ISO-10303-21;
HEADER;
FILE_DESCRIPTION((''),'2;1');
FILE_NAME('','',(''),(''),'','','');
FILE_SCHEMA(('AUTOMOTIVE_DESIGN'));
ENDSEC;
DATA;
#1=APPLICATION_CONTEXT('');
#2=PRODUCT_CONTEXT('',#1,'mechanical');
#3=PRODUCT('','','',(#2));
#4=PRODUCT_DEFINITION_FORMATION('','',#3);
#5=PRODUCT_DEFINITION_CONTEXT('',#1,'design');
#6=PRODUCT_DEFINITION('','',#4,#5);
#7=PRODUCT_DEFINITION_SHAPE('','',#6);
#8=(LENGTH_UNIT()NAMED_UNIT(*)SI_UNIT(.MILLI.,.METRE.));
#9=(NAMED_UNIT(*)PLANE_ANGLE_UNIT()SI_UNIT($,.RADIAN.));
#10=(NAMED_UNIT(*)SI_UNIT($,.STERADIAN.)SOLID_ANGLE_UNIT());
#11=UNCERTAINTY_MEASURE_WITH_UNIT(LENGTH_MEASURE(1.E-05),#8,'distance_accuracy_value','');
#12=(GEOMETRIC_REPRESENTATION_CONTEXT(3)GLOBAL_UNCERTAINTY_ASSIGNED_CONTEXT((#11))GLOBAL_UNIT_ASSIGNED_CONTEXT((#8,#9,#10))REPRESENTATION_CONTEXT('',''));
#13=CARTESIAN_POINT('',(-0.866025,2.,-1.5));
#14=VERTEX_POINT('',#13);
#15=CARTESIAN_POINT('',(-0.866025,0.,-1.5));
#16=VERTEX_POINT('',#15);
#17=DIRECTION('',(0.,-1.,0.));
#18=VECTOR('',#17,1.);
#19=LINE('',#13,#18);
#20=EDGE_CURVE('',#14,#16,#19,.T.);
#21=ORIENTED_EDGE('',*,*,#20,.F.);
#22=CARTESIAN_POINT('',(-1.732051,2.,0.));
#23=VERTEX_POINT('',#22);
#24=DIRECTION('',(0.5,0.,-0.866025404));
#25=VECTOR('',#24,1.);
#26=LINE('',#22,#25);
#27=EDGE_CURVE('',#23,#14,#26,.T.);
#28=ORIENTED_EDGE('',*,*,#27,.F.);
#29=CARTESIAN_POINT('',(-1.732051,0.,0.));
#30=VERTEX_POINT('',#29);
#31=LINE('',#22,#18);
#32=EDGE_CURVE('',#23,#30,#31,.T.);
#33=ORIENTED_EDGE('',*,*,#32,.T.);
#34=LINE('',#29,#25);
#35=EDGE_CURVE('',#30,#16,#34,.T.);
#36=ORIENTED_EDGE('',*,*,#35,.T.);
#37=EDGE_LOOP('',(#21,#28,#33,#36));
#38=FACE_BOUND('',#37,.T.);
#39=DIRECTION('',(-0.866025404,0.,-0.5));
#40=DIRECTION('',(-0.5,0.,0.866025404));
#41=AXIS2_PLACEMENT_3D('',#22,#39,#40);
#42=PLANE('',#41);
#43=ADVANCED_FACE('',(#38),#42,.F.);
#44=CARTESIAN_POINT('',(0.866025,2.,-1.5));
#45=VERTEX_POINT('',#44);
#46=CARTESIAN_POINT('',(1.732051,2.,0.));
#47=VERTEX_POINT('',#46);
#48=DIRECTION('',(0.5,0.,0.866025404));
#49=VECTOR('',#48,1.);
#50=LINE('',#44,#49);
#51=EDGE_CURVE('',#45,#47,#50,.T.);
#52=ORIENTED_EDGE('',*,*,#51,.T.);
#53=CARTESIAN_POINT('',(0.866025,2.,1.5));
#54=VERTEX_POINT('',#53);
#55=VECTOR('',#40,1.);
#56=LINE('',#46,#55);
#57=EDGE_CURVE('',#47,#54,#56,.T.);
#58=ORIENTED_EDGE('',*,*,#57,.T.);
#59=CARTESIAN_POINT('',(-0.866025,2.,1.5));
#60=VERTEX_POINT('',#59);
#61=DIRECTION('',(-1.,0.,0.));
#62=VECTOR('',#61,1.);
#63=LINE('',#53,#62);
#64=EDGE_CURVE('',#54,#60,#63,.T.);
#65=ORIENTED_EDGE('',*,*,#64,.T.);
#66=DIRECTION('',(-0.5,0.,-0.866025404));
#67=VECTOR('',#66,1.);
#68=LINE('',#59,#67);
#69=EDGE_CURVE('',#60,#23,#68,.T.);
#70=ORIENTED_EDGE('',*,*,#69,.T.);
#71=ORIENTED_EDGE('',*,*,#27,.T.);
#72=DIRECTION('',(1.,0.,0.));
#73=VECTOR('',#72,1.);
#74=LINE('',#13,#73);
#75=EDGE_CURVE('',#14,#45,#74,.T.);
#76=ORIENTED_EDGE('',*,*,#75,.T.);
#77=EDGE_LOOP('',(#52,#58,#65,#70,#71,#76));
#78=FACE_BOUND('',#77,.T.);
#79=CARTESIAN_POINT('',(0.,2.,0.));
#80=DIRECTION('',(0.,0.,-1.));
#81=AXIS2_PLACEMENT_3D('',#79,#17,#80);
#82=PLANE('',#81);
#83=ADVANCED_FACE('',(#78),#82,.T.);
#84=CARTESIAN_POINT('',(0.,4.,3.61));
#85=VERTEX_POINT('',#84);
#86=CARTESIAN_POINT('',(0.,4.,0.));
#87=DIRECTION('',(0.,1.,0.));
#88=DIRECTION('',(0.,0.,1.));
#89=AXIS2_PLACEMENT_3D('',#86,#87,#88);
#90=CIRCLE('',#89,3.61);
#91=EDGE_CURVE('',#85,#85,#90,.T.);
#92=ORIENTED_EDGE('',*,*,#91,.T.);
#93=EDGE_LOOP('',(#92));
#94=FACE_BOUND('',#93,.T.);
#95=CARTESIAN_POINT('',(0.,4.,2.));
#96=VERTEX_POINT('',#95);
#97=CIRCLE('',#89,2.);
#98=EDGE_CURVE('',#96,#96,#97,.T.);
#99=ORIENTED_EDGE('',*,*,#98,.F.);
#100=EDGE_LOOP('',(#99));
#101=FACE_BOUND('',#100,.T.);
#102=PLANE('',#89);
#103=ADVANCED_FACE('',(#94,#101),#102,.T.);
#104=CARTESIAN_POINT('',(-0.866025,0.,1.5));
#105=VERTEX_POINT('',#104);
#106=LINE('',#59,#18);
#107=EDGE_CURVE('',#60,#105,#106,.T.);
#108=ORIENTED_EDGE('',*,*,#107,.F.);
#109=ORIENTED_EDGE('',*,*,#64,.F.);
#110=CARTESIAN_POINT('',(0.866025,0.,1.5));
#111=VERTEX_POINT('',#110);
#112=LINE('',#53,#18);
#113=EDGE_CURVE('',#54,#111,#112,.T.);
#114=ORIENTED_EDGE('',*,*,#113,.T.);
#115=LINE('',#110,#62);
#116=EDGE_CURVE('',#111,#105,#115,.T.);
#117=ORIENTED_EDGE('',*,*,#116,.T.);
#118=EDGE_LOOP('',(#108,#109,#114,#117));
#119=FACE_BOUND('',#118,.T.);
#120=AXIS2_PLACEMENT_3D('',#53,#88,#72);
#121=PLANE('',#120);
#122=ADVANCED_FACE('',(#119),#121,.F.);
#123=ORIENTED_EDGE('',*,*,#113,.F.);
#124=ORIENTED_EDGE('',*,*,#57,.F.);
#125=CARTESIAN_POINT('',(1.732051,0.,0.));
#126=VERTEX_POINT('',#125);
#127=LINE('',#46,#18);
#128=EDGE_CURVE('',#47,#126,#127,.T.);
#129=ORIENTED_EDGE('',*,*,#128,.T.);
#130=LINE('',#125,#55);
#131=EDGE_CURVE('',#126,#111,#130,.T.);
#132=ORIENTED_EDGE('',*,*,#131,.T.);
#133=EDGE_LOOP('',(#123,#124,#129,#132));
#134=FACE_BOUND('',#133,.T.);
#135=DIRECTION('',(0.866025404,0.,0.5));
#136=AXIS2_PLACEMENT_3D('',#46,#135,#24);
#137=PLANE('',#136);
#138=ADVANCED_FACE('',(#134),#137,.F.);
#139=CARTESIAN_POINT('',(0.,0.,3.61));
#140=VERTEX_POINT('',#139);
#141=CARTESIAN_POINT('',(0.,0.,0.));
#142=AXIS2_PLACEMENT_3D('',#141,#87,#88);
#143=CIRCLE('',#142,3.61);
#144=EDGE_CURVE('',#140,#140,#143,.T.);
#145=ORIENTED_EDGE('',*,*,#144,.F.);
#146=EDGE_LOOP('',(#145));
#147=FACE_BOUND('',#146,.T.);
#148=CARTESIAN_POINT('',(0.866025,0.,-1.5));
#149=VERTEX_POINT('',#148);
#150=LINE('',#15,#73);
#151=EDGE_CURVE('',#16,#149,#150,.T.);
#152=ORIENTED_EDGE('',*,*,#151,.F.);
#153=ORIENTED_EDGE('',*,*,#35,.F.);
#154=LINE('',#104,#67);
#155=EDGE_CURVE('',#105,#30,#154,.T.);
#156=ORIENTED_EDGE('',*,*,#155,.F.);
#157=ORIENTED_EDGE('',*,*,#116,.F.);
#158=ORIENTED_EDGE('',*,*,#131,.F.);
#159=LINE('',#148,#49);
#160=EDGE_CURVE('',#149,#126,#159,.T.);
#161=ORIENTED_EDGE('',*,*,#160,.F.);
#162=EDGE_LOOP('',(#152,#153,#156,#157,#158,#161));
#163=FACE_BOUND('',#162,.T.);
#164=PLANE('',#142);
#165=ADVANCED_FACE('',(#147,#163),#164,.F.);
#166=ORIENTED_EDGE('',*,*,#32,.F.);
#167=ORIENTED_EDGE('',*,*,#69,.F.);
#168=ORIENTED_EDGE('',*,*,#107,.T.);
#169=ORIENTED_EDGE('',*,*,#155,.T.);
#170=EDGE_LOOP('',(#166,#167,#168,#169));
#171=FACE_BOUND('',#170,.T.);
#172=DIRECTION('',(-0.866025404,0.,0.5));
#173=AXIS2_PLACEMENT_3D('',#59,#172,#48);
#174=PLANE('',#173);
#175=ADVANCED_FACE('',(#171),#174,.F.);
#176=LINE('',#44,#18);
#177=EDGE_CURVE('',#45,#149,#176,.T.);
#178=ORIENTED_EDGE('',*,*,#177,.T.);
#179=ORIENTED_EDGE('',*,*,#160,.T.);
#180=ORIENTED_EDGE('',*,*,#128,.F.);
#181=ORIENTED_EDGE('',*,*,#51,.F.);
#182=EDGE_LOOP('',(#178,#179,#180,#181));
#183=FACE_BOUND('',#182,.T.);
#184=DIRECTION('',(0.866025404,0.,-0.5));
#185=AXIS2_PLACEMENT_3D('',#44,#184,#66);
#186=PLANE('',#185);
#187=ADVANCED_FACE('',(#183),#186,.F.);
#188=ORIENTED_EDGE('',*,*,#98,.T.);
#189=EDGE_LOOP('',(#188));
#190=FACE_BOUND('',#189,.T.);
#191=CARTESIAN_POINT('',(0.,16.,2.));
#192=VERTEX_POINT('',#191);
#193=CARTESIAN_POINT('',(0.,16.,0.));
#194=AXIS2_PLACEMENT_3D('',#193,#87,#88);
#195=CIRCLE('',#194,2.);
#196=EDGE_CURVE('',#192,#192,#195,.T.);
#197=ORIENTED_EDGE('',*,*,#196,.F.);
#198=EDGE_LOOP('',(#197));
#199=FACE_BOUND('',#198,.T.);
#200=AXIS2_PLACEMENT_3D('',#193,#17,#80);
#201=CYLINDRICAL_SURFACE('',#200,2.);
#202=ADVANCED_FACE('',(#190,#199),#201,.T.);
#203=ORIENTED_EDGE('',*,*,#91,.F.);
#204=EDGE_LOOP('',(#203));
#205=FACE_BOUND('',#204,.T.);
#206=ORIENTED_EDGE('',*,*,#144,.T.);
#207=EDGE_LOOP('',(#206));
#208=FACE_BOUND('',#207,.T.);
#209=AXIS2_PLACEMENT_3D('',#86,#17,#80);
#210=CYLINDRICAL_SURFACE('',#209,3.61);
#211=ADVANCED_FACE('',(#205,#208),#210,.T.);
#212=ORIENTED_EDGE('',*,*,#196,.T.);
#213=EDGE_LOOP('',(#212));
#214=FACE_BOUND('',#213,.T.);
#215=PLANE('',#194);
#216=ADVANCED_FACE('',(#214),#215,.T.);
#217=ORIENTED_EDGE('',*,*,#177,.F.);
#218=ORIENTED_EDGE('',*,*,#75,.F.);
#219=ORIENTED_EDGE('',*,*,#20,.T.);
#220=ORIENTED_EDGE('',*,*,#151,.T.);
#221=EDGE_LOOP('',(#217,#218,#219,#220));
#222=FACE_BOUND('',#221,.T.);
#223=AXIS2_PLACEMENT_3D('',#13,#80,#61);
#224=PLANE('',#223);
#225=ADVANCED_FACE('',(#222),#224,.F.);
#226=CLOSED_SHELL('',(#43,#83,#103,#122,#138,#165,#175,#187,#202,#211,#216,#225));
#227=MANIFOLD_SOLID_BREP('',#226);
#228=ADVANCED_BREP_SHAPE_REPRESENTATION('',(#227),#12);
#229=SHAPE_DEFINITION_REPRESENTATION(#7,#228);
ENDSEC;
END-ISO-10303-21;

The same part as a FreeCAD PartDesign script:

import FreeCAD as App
import Part
import Sketcher
from FreeCAD import Vector
Q = App.Units.Quantity

doc = App.newDocument("Part")
body = doc.addObject("PartDesign::Body", "Body")

sketch1 = doc.addObject("Sketcher::SketchObject", "Sketch")
body.addObject(sketch1)
sketch1.AttachmentSupport = (doc.XZ_Plane, [""])
sketch1.MapMode = "FlatFace"
sketch1.addGeometry(Part.Circle(Vector(0, 0, 0), Vector(0, 0, 1), 3.6), False)
sketch1.addConstraint([
    Sketcher.Constraint("Coincident", 0, 3, -1, 1),
    Sketcher.Constraint("Diameter", 0, Q("7.22 mm")),
])
pad1 = doc.addObject("PartDesign::Pad", "Pad")
body.addObject(pad1)
pad1.Profile = sketch1
pad1.Length = 4
pad1.Reversed = True

sketch2 = doc.addObject("Sketcher::SketchObject", "Sketch001")
body.addObject(sketch2)
sketch2.AttachmentSupport = (doc.XZ_Plane, [""])
sketch2.MapMode = "FlatFace"
sketch2.addGeometry([
    Part.LineSegment(Vector(1.7, 0, 0), Vector(0.9, 1.5, 0)),
    Part.LineSegment(Vector(0.9, 1.5, 0), Vector(-0.9, 1.5, 0)),
    Part.LineSegment(Vector(-0.9, 1.5, 0), Vector(-1.7, 0, 0)),
    Part.LineSegment(Vector(-1.7, 0, 0), Vector(-0.9, -1.5, 0)),
    Part.LineSegment(Vector(-0.9, -1.5, 0), Vector(0.9, -1.5, 0)),
    Part.LineSegment(Vector(0.9, -1.5, 0), Vector(1.7, 0, 0)),
], False)
sketch2.addConstraint([
    Sketcher.Constraint("Coincident", 0, 2, 1, 1),
    Sketcher.Constraint("Coincident", 1, 2, 2, 1),
    Sketcher.Constraint("Coincident", 2, 2, 3, 1),
    Sketcher.Constraint("Coincident", 3, 2, 4, 1),
    Sketcher.Constraint("Coincident", 4, 2, 5, 1),
    Sketcher.Constraint("Coincident", 5, 2, 0, 1),
    Sketcher.Constraint("Horizontal", 1),
    Sketcher.Constraint("Horizontal", 4),
    Sketcher.Constraint("Symmetric", 0, 2, 3, 2, -1, 1),
    Sketcher.Constraint("Symmetric", 2, 2, 5, 2, -1, 1),
    Sketcher.Constraint("PointOnObject", 2, 2, -1),
    Sketcher.Constraint("Parallel", 2, 5),
    Sketcher.Constraint("Vertical", 1, 2, 3, 2),
    Sketcher.Constraint("Angle", 0, Q("120 deg")),
    Sketcher.Constraint("DistanceY", 3, 2, 1, 2, Q("3 mm")),
    Sketcher.Constraint("DistanceX", 1, 2, 1, 1, Q("1.732051 mm")),
])
pocket1 = doc.addObject("PartDesign::Pocket", "Pocket")
body.addObject(pocket1)
pocket1.Profile = sketch2
pocket1.Length = 2

sketch3 = doc.addObject("Sketcher::SketchObject", "Sketch002")
body.addObject(sketch3)
sketch3.AttachmentSupport = (doc.XZ_Plane, [""])
sketch3.MapMode = "FlatFace"
sketch3.AttachmentOffset = App.Placement(Vector(0, 0, -4), App.Rotation())
sketch3.addGeometry(Part.Circle(Vector(0, 0, 0), Vector(0, 0, 1), 2), False)
sketch3.addConstraint([
    Sketcher.Constraint("Coincident", 0, 3, -1, 1),
    Sketcher.Constraint("Diameter", 0, Q("4 mm")),
])
pad2 = doc.addObject("PartDesign::Pad", "Pad001")
body.addObject(pad2)
pad2.Profile = sketch3
pad2.Length = 12
pad2.Reversed = True

doc.recompute()
